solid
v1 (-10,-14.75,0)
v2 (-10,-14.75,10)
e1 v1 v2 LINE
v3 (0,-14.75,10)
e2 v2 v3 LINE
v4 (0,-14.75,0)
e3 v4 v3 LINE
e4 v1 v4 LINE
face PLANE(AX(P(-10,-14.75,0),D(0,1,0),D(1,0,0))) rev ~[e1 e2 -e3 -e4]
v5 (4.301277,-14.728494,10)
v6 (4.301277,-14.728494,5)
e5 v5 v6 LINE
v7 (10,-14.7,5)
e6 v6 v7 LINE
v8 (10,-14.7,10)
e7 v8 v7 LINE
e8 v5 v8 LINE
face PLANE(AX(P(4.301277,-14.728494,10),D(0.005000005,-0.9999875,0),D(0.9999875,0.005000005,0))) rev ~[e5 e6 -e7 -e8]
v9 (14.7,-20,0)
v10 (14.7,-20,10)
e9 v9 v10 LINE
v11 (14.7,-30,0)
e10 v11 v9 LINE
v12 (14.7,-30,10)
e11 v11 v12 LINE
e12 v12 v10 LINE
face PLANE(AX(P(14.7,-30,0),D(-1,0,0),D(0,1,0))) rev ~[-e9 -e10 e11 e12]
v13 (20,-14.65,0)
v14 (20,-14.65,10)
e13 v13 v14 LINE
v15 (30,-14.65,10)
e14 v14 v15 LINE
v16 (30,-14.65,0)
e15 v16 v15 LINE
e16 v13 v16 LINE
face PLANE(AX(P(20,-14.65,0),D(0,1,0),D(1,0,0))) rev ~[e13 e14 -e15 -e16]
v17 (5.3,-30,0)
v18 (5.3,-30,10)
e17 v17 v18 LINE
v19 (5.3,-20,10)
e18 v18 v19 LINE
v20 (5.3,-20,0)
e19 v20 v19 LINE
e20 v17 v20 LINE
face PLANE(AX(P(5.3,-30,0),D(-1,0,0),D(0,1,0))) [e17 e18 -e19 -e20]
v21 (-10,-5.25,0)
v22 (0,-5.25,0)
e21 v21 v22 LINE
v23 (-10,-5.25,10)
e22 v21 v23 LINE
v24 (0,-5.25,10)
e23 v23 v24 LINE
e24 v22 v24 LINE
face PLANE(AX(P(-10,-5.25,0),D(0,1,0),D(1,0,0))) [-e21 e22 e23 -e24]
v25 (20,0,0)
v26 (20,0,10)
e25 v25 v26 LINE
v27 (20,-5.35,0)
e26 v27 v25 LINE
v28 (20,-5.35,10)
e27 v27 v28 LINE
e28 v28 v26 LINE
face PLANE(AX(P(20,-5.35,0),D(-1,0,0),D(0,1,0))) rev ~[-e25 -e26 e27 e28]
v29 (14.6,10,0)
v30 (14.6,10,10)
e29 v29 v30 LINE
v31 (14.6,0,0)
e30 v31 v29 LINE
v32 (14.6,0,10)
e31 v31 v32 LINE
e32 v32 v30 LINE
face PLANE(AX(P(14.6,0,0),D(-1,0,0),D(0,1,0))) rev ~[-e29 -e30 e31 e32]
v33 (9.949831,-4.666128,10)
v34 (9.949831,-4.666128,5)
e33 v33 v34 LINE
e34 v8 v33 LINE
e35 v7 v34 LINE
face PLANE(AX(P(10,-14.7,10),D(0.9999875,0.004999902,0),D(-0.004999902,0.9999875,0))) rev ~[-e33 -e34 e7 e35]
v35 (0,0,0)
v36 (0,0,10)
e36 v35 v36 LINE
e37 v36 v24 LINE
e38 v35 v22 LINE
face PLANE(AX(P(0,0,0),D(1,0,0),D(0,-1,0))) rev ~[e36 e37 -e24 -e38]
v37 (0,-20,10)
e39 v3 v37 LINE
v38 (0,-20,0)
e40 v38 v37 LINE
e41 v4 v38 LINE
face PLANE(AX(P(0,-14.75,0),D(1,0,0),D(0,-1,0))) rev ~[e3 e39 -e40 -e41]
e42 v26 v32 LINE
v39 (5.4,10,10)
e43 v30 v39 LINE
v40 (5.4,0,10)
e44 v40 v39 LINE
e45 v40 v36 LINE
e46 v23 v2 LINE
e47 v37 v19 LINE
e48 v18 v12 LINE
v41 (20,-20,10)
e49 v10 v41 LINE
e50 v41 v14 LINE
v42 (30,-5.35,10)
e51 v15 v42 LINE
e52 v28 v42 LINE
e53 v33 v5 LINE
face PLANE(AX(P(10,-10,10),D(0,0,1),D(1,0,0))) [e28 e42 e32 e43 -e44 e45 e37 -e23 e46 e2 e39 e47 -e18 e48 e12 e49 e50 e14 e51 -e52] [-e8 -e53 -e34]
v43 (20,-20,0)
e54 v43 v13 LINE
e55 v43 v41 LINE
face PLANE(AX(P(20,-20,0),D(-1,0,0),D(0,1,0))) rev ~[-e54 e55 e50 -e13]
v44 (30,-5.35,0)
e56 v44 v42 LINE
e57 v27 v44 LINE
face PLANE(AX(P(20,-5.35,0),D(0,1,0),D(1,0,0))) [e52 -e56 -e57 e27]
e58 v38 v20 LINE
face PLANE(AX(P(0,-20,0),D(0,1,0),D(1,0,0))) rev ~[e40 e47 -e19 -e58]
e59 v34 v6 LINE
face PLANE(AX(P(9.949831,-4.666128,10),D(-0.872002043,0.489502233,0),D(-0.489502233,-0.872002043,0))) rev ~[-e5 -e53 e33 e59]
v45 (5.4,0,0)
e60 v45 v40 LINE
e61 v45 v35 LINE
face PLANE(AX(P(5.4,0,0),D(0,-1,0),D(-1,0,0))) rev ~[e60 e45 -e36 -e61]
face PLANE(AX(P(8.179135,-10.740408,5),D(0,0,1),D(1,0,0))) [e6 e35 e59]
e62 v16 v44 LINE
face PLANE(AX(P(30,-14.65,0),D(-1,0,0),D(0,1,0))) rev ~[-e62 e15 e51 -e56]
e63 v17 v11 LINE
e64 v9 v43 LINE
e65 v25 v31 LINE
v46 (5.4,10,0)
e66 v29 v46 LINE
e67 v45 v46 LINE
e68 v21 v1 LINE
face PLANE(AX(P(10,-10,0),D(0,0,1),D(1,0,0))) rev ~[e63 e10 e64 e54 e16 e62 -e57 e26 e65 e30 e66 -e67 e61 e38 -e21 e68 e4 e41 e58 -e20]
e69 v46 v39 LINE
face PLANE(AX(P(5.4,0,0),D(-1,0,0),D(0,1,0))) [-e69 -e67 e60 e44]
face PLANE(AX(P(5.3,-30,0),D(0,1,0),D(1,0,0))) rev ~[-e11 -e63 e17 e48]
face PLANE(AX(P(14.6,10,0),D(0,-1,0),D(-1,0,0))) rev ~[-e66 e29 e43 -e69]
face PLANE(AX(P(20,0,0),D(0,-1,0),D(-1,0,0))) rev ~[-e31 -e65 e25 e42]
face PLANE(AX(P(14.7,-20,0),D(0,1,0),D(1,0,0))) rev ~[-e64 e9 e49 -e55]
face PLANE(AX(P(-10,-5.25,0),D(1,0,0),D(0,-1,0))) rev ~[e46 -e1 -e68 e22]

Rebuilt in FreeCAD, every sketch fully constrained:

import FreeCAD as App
import Part
import Sketcher
Q = App.Units.Quantity

doc = App.newDocument("Part")
params = doc.addObject("Spreadsheet::Sheet", "Params")
for row, (alias, value) in enumerate([
    ("sketch1_width", "10 mm"),
    ("sketch1_width2", "5.3 mm"),
    ("sketch1_width3", "9.4 mm"),
    ("sketch1_width4", "5.4 mm"),
    ("sketch1_height", "9.5 mm"),
    ("pad1_length", "10 mm"),
    ("pocket1_length", "5 mm"),
], start=1):
    params.set(f"A{row}", alias)
    params.set(f"B{row}", "=" + value)
    params.setAlias(f"B{row}", alias)

body = doc.addObject("PartDesign::Body", "Body")

sketch1 = body.newObject("Sketcher::SketchObject", "Sketch")
sketch1.AttachmentSupport = (doc.getObject("XY_Plane"), [""])
sketch1.MapMode = "FlatFace"
sketch1.addGeometry([
    Part.LineSegment(App.Vector(0, 0, 0), App.Vector(0, -5, 0)),
    Part.LineSegment(App.Vector(0, -5, 0), App.Vector(-10, -5, 0)),
    Part.LineSegment(App.Vector(-10, -5, 0), App.Vector(-10, -15, 0)),
    Part.LineSegment(App.Vector(-10, -15, 0), App.Vector(0, -15, 0)),
    Part.LineSegment(App.Vector(0, -15, 0), App.Vector(0, -20, 0)),
    Part.LineSegment(App.Vector(0, -20, 0), App.Vector(5, -20, 0)),
    Part.LineSegment(App.Vector(5, -20, 0), App.Vector(5, -30, 0)),
    Part.LineSegment(App.Vector(5, -30, 0), App.Vector(15, -30, 0)),
    Part.LineSegment(App.Vector(15, -30, 0), App.Vector(15, -20, 0)),
    Part.LineSegment(App.Vector(15, -20, 0), App.Vector(20, -20, 0)),
    Part.LineSegment(App.Vector(20, -20, 0), App.Vector(20, -15, 0)),
    Part.LineSegment(App.Vector(20, -15, 0), App.Vector(30, -15, 0)),
    Part.LineSegment(App.Vector(30, -15, 0), App.Vector(30, -5, 0)),
    Part.LineSegment(App.Vector(30, -5, 0), App.Vector(20, -5, 0)),
    Part.LineSegment(App.Vector(20, -5, 0), App.Vector(20, 0, 0)),
    Part.LineSegment(App.Vector(20, 0, 0), App.Vector(15, 0, 0)),
    Part.LineSegment(App.Vector(15, 0, 0), App.Vector(15, 10, 0)),
    Part.LineSegment(App.Vector(15, 10, 0), App.Vector(5, 10, 0)),
    Part.LineSegment(App.Vector(5, 10, 0), App.Vector(5, 0, 0)),
    Part.LineSegment(App.Vector(5, 0, 0), App.Vector(0, 0, 0)),
], False)
sketch1.addConstraint([
    Sketcher.Constraint("Coincident", 0, 2, 1, 1),
    Sketcher.Constraint("Coincident", 1, 2, 2, 1),
    Sketcher.Constraint("Coincident", 2, 2, 3, 1),
    Sketcher.Constraint("Coincident", 3, 2, 4, 1),
    Sketcher.Constraint("Coincident", 4, 2, 5, 1),
    Sketcher.Constraint("Coincident", 5, 2, 6, 1),
    Sketcher.Constraint("Coincident", 6, 2, 7, 1),
    Sketcher.Constraint("Coincident", 7, 2, 8, 1),
    Sketcher.Constraint("Coincident", 8, 2, 9, 1),
    Sketcher.Constraint("Coincident", 9, 2, 10, 1),
    Sketcher.Constraint("Coincident", 10, 2, 11, 1),
    Sketcher.Constraint("Coincident", 11, 2, 12, 1),
    Sketcher.Constraint("Coincident", 12, 2, 13, 1),
    Sketcher.Constraint("Coincident", 13, 2, 14, 1),
    Sketcher.Constraint("Coincident", 14, 2, 15, 1),
    Sketcher.Constraint("Coincident", 15, 2, 16, 1),
    Sketcher.Constraint("Coincident", 16, 2, 17, 1),
    Sketcher.Constraint("Coincident", 17, 2, 18, 1),
    Sketcher.Constraint("Coincident", 18, 2, 19, 1),
    Sketcher.Constraint("Coincident", 19, 2, 0, 1),
    Sketcher.Constraint("Vertical", 0),
    Sketcher.Constraint("Horizontal", 1),
    Sketcher.Constraint("Vertical", 2),
    Sketcher.Constraint("Horizontal", 3),
    Sketcher.Constraint("Vertical", 4),
    Sketcher.Constraint("Horizontal", 5),
    Sketcher.Constraint("Vertical", 6),
    Sketcher.Constraint("Horizontal", 7),
    Sketcher.Constraint("Vertical", 8),
    Sketcher.Constraint("Horizontal", 9),
    Sketcher.Constraint("Vertical", 10),
    Sketcher.Constraint("Horizontal", 11),
    Sketcher.Constraint("Vertical", 12),
    Sketcher.Constraint("Horizontal", 13),
    Sketcher.Constraint("Vertical", 14),
    Sketcher.Constraint("Horizontal", 15),
    Sketcher.Constraint("Vertical", 16),
    Sketcher.Constraint("Horizontal", 17),
    Sketcher.Constraint("Vertical", 18),
    Sketcher.Constraint("Horizontal", 19),
    Sketcher.Constraint("Coincident", 19, 2, -1, 1),
    Sketcher.Constraint("PointOnObject", 3, 2, -2),
    Sketcher.Constraint("PointOnObject", 14, 2, -1),
    Sketcher.Constraint("Horizontal", 5, 2, 8, 2),
    Sketcher.Constraint("Vertical", 10, 2, 13, 2),
    Sketcher.Constraint("Equal", 5, 9),
    Sketcher.Constraint("Equal", 3, 11),
    Sketcher.Constraint("Equal", 15, 19),
    Sketcher.Constraint("Equal", 0, 4),
    Sketcher.Constraint("Equal", 13, 6),
    Sketcher.Constraint("Equal", 10, 14),
    Sketcher.Constraint("Equal", 8, 16),
    Sketcher.Constraint("DistanceX", 1, 2, 1, 1, Q("10 mm")),
    Sketcher.Constraint("DistanceX", 5, 1, 5, 2, Q("5.3 mm")),
    Sketcher.Constraint("DistanceX", 7, 1, 7, 2, Q("9.4 mm")),
    Sketcher.Constraint("DistanceX", 15, 2, 15, 1, Q("5.4 mm")),
    Sketcher.Constraint("DistanceY", 2, 2, 2, 1, Q("9.5 mm")),
    Sketcher.Constraint("DistanceY", 12, 1, 12, 2, Q("9.3 mm")),
    Sketcher.Constraint("DistanceY", 4, 2, -1, 1, Q("20 mm")),
])
sketch1.setExpression("Constraints[52]", "Params.sketch1_width")
sketch1.setExpression("Constraints[53]", "Params.sketch1_width2")
sketch1.setExpression("Constraints[54]", "Params.sketch1_width3")
sketch1.setExpression("Constraints[55]", "Params.sketch1_width4")
sketch1.setExpression("Constraints[56]", "Params.sketch1_height")
pad1 = body.newObject("PartDesign::Pad", "Pad")
pad1.Profile = sketch1
pad1.setExpression("Length", "Params.pad1_length")

sketch2 = body.newObject("Sketcher::SketchObject", "Sketch001")
sketch2.AttachmentSupport = (doc.getObject("XY_Plane"), [""])
sketch2.MapMode = "FlatFace"
sketch2.AttachmentOffset = App.Placement(App.Vector(0, 0, 10), App.Rotation())
sketch2.addGeometry([
    Part.LineSegment(App.Vector(4, -15, 0), App.Vector(10, -15, 0)),
    Part.LineSegment(App.Vector(10, -15, 0), App.Vector(10, -5, 0)),
    Part.LineSegment(App.Vector(10, -5, 0), App.Vector(4, -15, 0)),
], False)
sketch2.addConstraint([
    Sketcher.Constraint("Coincident", 0, 2, 1, 1),
    Sketcher.Constraint("Coincident", 1, 2, 2, 1),
    Sketcher.Constraint("Coincident", 2, 2, 0, 1),
    Sketcher.Constraint("Perpendicular", 0, 1),
    Sketcher.Constraint("DistanceX", -1, 1, 0, 2, Q("10 mm")),
    Sketcher.Constraint("DistanceY", 0, 2, -1, 1, Q("14.7 mm")),
    Sketcher.Constraint("DistanceX", -1, 1, 1, 2, Q("9.949831 mm")),
    Sketcher.Constraint("DistanceY", 0, 2, 1, 2, Q("10.033872 mm")),
    Sketcher.Constraint("Distance", 0, Q("5.698794 mm")),
])
pocket1 = body.newObject("PartDesign::Pocket", "Pocket")
pocket1.Profile = sketch2
pocket1.setExpression("Length", "Params.pocket1_length")

doc.recompute()
